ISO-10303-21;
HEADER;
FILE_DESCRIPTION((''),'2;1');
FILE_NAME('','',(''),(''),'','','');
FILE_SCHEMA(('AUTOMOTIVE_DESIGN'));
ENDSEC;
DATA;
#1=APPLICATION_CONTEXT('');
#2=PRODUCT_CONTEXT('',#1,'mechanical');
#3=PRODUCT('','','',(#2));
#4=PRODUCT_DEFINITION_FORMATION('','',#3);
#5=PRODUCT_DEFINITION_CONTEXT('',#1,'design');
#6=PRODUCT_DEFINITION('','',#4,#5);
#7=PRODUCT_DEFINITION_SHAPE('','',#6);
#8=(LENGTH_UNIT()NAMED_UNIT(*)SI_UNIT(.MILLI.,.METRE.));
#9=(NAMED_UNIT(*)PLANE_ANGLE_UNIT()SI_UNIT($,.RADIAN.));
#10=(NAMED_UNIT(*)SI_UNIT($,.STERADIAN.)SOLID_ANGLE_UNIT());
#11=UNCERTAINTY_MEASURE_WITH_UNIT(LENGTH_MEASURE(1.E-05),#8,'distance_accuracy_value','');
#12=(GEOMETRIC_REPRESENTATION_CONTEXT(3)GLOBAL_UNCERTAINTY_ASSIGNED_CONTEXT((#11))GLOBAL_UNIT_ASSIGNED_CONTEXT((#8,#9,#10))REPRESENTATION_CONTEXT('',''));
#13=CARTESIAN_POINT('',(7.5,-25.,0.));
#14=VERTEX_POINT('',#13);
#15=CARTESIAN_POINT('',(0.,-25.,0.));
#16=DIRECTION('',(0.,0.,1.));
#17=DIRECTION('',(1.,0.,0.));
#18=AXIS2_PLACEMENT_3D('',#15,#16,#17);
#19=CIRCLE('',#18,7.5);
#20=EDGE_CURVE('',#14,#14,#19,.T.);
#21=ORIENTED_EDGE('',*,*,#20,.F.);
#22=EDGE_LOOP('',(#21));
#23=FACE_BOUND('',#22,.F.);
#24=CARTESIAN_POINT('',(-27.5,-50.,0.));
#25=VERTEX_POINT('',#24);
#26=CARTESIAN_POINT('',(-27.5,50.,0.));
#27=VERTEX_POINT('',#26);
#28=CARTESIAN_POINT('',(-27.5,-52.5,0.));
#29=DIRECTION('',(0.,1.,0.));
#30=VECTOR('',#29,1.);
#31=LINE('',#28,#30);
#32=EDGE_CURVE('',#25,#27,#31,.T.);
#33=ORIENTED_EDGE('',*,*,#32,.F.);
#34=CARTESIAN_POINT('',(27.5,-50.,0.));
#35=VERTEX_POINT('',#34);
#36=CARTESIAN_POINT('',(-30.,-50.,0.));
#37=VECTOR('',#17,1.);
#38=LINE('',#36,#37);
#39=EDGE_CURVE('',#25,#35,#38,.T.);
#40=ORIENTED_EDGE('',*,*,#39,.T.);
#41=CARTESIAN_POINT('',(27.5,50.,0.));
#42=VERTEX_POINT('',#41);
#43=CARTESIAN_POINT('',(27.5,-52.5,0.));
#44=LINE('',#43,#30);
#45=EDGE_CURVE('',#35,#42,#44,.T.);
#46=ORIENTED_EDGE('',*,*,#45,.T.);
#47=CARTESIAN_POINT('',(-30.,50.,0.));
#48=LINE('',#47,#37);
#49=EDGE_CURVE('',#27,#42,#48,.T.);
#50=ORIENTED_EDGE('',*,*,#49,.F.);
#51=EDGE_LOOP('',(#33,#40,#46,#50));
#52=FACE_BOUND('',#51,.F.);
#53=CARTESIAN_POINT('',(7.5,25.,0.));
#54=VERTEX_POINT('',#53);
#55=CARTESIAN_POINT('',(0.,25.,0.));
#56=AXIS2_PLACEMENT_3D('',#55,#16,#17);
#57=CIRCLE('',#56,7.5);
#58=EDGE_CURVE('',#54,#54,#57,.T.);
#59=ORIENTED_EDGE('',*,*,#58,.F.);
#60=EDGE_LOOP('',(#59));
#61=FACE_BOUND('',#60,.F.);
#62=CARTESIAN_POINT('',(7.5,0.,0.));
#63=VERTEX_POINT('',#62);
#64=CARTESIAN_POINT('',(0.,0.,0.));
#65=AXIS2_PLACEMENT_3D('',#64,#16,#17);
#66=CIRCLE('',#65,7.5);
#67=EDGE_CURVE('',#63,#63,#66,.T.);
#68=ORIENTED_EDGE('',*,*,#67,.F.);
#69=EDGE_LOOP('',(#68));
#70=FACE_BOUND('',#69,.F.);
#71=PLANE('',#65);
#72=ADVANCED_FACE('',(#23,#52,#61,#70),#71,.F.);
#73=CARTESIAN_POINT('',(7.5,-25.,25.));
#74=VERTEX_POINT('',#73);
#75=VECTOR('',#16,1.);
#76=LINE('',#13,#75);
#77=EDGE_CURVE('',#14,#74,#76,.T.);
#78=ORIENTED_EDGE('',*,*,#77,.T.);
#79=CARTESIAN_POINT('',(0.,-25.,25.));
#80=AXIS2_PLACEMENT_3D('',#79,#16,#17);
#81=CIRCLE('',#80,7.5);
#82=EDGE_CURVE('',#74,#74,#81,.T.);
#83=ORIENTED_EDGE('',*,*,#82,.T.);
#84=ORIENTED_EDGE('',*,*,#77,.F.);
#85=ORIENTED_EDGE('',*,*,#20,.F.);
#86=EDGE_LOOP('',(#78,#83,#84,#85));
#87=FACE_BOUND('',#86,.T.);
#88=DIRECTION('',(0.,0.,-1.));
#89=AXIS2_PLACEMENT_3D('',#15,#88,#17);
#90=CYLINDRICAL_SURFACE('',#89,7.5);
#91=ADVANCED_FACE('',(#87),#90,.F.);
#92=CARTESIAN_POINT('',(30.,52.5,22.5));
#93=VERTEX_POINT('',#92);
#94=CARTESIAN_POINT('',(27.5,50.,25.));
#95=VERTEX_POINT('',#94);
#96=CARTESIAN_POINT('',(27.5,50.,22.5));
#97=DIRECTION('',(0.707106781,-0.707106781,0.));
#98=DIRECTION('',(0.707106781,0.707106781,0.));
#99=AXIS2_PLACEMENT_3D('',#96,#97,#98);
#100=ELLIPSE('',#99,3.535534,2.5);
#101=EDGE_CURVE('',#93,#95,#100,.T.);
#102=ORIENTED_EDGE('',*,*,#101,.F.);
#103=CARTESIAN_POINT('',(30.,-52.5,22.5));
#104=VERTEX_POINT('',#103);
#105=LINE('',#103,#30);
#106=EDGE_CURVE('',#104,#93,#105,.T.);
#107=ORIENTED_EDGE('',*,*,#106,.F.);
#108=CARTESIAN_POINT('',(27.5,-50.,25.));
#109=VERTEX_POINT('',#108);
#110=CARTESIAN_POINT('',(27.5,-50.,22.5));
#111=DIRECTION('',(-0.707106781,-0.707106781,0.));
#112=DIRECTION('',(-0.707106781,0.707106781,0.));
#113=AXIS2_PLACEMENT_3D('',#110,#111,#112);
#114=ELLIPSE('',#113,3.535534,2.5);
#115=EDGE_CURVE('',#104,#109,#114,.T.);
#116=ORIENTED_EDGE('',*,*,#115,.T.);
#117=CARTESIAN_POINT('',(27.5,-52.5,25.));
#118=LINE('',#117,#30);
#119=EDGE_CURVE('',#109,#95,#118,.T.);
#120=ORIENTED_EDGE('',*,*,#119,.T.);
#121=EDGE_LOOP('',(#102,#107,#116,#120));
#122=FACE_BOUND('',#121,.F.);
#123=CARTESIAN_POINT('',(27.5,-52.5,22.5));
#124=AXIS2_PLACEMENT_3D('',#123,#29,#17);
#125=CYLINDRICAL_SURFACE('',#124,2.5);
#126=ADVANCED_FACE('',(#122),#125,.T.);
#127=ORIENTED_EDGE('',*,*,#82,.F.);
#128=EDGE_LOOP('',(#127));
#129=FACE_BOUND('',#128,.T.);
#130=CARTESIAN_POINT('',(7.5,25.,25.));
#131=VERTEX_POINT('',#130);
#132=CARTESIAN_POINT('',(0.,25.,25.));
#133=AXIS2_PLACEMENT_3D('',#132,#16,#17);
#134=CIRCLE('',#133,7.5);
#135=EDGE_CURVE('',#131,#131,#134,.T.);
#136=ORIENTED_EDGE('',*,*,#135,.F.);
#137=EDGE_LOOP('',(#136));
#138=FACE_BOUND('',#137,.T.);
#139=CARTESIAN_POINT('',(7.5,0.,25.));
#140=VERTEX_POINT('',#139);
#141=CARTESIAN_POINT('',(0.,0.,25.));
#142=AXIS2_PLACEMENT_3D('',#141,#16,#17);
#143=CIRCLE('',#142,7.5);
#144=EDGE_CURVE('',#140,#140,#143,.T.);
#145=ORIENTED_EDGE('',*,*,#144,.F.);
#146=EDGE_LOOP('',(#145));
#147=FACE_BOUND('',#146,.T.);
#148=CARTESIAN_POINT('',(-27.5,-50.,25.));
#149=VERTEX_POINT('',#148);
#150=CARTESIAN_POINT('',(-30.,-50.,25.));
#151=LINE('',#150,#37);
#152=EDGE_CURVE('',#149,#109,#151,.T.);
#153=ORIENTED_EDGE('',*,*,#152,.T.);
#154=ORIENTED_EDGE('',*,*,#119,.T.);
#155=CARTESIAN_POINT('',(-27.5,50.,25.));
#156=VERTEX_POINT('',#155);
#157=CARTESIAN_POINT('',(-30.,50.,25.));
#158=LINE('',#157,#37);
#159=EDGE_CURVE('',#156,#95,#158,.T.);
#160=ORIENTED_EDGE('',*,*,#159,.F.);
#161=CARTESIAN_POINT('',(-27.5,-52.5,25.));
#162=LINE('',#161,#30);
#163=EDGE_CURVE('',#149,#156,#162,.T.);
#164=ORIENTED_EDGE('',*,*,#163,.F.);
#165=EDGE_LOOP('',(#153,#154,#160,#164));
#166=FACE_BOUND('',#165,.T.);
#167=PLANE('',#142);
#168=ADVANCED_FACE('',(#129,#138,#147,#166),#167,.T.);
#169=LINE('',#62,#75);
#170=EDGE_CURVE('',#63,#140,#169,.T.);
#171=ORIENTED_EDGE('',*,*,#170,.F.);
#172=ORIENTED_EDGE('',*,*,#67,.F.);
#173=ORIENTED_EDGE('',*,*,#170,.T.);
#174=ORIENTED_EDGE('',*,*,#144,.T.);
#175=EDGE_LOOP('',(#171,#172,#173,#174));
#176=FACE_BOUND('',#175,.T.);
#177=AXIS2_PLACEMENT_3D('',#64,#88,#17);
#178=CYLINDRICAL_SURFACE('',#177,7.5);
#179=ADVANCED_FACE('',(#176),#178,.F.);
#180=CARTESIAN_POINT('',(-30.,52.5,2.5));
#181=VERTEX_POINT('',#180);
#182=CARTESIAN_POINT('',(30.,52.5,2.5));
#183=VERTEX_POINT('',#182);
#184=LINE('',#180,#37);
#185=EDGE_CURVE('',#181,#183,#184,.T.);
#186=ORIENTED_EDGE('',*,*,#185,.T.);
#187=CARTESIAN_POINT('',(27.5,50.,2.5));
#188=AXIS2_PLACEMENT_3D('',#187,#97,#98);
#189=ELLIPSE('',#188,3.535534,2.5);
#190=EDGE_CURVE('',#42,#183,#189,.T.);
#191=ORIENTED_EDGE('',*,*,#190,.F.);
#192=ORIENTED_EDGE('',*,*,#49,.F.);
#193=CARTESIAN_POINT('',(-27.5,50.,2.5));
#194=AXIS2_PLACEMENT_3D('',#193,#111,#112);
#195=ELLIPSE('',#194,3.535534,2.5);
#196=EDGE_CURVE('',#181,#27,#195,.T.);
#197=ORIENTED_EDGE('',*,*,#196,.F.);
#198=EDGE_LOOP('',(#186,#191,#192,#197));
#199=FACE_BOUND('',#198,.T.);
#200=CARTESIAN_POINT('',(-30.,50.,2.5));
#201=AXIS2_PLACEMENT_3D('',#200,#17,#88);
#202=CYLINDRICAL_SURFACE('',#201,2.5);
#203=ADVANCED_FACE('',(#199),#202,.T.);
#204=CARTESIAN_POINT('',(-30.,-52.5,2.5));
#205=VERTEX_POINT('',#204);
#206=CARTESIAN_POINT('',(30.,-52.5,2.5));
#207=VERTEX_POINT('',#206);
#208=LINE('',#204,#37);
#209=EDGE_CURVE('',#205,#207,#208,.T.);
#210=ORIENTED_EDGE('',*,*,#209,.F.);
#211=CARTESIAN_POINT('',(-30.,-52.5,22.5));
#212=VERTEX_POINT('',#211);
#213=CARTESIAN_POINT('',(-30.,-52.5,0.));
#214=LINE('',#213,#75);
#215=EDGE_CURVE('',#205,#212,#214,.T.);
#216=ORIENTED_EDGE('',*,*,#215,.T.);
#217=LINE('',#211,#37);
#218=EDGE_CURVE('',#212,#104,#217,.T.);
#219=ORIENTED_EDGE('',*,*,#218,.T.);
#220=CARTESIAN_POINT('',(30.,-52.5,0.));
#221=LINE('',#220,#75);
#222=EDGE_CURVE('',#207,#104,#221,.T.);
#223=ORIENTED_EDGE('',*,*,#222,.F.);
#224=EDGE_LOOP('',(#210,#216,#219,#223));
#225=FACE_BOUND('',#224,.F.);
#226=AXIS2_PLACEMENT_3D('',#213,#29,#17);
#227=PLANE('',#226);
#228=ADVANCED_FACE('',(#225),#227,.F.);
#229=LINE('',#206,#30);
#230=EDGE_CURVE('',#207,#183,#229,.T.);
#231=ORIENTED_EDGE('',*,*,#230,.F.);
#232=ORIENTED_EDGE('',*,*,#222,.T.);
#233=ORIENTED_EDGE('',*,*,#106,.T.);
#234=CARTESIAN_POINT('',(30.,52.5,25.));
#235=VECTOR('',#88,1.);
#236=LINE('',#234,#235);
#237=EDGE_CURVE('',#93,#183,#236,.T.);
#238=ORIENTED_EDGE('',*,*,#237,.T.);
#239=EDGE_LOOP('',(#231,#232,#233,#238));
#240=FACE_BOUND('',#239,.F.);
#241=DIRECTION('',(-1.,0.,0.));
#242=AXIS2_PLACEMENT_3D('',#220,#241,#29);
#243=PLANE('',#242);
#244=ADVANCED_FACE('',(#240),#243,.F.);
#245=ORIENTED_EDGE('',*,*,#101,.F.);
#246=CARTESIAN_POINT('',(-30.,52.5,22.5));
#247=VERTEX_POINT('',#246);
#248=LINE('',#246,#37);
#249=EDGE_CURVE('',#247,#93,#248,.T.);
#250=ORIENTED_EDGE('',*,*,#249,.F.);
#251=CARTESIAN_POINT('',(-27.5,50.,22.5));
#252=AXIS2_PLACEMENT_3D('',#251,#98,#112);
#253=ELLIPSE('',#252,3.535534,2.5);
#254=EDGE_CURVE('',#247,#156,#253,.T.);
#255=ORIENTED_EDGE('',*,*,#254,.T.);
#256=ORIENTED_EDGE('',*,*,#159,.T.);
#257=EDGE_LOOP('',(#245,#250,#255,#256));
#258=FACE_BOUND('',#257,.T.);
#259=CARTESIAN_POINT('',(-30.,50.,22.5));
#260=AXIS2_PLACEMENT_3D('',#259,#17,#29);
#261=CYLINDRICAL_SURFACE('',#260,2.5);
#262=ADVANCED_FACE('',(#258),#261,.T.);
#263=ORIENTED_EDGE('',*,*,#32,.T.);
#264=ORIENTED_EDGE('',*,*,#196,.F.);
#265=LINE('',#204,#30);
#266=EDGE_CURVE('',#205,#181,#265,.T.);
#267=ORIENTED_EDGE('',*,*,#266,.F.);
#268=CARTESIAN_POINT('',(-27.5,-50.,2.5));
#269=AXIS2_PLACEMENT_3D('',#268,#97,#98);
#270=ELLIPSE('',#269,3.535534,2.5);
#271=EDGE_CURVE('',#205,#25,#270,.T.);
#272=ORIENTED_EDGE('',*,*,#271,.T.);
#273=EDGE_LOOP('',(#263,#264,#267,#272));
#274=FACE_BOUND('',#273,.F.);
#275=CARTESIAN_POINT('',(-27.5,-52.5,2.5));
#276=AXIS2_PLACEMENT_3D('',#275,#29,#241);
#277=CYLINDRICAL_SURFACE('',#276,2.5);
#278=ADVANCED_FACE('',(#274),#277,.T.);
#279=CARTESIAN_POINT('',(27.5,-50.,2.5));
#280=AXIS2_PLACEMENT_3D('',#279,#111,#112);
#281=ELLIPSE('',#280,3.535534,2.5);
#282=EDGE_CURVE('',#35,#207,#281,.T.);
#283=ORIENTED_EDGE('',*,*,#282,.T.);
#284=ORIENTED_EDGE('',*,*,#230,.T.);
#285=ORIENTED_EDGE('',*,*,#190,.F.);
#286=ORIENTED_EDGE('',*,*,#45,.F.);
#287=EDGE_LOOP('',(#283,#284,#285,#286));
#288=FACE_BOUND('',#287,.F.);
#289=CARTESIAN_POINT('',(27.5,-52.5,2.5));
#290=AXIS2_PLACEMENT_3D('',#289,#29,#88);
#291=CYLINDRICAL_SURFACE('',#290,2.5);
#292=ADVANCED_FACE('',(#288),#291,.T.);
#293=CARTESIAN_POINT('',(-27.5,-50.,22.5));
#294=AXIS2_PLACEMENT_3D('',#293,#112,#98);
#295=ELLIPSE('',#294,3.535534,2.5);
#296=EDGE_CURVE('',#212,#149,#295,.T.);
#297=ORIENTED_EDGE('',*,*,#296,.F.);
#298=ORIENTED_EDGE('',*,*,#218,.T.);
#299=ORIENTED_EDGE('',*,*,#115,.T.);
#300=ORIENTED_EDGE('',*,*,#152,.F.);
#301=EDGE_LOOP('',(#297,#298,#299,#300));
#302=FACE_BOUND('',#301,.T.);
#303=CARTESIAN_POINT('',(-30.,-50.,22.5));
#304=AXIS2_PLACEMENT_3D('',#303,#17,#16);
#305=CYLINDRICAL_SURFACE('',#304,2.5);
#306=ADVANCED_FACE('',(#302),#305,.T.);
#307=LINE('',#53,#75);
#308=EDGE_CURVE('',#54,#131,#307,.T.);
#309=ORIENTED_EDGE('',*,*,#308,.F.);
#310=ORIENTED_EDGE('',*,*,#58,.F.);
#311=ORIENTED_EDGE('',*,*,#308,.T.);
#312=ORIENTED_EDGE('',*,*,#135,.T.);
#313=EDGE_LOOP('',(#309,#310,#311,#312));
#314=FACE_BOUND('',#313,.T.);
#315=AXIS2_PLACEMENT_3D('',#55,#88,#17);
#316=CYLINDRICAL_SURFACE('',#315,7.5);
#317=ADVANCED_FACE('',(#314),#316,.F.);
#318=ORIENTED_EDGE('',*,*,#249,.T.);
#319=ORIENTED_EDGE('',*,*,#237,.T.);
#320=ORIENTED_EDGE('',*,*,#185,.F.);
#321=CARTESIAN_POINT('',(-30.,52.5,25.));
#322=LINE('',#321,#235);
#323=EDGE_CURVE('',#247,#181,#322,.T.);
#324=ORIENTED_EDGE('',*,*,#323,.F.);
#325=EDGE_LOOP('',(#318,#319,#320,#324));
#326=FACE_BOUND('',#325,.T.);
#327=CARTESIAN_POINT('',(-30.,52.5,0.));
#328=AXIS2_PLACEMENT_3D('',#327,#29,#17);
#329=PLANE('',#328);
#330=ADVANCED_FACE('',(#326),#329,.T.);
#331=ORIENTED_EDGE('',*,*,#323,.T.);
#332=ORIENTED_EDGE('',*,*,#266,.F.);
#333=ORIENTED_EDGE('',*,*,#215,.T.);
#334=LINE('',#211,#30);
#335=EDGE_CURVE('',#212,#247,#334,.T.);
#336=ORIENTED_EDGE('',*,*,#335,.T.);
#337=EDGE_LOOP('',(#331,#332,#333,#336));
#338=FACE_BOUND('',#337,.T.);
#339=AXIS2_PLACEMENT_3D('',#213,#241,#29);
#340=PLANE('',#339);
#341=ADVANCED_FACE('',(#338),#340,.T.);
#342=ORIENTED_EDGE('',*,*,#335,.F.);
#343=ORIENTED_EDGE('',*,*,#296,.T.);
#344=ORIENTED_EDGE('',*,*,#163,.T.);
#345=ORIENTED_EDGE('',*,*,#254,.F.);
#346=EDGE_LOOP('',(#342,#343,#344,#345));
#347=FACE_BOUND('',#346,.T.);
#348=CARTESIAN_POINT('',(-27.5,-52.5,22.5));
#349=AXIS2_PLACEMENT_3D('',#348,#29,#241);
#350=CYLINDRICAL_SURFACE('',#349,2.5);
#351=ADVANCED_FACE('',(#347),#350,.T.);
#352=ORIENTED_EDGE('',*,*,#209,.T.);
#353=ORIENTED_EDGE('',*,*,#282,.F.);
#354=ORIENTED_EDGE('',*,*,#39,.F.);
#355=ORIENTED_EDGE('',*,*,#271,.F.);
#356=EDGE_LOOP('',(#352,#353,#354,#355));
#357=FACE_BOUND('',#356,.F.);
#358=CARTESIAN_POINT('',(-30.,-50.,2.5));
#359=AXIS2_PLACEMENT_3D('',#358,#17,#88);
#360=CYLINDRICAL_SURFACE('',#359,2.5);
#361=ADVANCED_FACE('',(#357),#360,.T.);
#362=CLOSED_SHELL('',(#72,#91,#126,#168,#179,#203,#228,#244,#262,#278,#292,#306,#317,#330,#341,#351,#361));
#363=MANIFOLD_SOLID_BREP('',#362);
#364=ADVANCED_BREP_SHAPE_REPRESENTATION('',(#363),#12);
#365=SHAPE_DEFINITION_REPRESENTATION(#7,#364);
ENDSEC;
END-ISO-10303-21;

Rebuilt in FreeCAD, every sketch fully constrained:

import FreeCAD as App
import Part
import Sketcher

V = App.Vector
Q = App.Units.Quantity


def edges_at(feature, points):
    """Names of the edges that pass closest to the given points."""
    edges = feature.Shape.Edges
    near = lambda p: min(range(len(edges)), key=lambda i: edges[i].distToShape(Part.Vertex(*p))[0])
    return sorted({f"Edge{near(p) + 1}" for p in points})

doc = App.newDocument("Part")
body = doc.addObject("PartDesign::Body", "Body")

sketch1 = doc.addObject("Sketcher::SketchObject", "Sketch")
body.addObject(sketch1)
sketch1.AttachmentSupport = (doc.XY_Plane, [""])
sketch1.MapMode = "FlatFace"
sketch1.addGeometry([
    Part.LineSegment(V(-30, 52, 0), V(-30, -52, 0)),
    Part.LineSegment(V(-30, -52, 0), V(30, -52, 0)),
    Part.LineSegment(V(30, -52, 0), V(30, 52, 0)),
    Part.LineSegment(V(30, 52, 0), V(-30, 52, 0)),
    Part.Circle(V(0, -25, 0), V(0, 0, 1), 8),
    Part.Circle(V(0, 0, 0), V(0, 0, 1), 8),
    Part.Circle(V(0, 25, 0), V(0, 0, 1), 8),
], False)
sketch1.addConstraint([
    Sketcher.Constraint("Coincident", 0, 2, 1, 1),
    Sketcher.Constraint("Coincident", 1, 2, 2, 1),
    Sketcher.Constraint("Coincident", 2, 2, 3, 1),
    Sketcher.Constraint("Coincident", 3, 2, 0, 1),
    Sketcher.Constraint("Vertical", 0),
    Sketcher.Constraint("Horizontal", 1),
    Sketcher.Constraint("Vertical", 2),
    Sketcher.Constraint("Horizontal", 3),
    Sketcher.Constraint("Coincident", 5, 3, -1, 1),
    Sketcher.Constraint("Equal", 4, 5),
    Sketcher.Constraint("Equal", 5, 6),
    Sketcher.Constraint("Symmetric", 4, 3, 6, 3, -1, 1),
    Sketcher.Constraint("Symmetric", 0, 2, 2, 2, -1, 1),
    Sketcher.Constraint("PointOnObject", 4, 3, -2),
    Sketcher.Constraint("Diameter", 4, Q("15 mm")),
    Sketcher.Constraint("DistanceX", 1, 1, 1, 2, Q("60 mm")),
    Sketcher.Constraint("DistanceY", 0, 2, 0, 1, Q("105 mm")),
    Sketcher.Constraint("DistanceY", 4, 3, -1, 1, Q("25 mm")),
])
pad1 = doc.addObject("PartDesign::Pad", "Pad")
body.addObject(pad1)
pad1.Profile = sketch1
pad1.Length = 20

sketch2 = doc.addObject("Sketcher::SketchObject", "Sketch001")
body.addObject(sketch2)
sketch2.AttachmentSupport = (doc.XY_Plane, [""])
sketch2.MapMode = "FlatFace"
sketch2.addGeometry([
    Part.LineSegment(V(-30, 52, 0), V(-30, -52, 0)),
    Part.LineSegment(V(-30, -52, 0), V(30, -52, 0)),
    Part.LineSegment(V(30, -52, 0), V(30, 52, 0)),
    Part.LineSegment(V(30, 52, 0), V(-30, 52, 0)),
    Part.Circle(V(0, -25, 0), V(0, 0, 1), 8),
    Part.Circle(V(0, 0, 0), V(0, 0, 1), 8),
    Part.Circle(V(0, 25, 0), V(0, 0, 1), 8),
], False)
sketch2.addConstraint([
    Sketcher.Constraint("Coincident", 0, 2, 1, 1),
    Sketcher.Constraint("Coincident", 1, 2, 2, 1),
    Sketcher.Constraint("Coincident", 2, 2, 3, 1),
    Sketcher.Constraint("Coincident", 3, 2, 0, 1),
    Sketcher.Constraint("Vertical", 0),
    Sketcher.Constraint("Horizontal", 1),
    Sketcher.Constraint("Vertical", 2),
    Sketcher.Constraint("Horizontal", 3),
    Sketcher.Constraint("Coincident", 5, 3, -1, 1),
    Sketcher.Constraint("Equal", 4, 5),
    Sketcher.Constraint("Equal", 5, 6),
    Sketcher.Constraint("Symmetric", 4, 3, 6, 3, -1, 1),
    Sketcher.Constraint("Symmetric", 0, 2, 2, 2, -1, 1),
    Sketcher.Constraint("PointOnObject", 4, 3, -2),
    Sketcher.Constraint("Diameter", 4, Q("15 mm")),
    Sketcher.Constraint("DistanceX", 1, 1, 1, 2, Q("60 mm")),
    Sketcher.Constraint("DistanceY", 0, 2, 0, 1, Q("105 mm")),
    Sketcher.Constraint("DistanceY", 4, 3, -1, 1, Q("25 mm")),
])
pad2 = doc.addObject("PartDesign::Pad", "Pad001")
body.addObject(pad2)
pad2.Profile = sketch2
pad2.Length = 25
doc.recompute()

fillet = doc.addObject("PartDesign::Fillet", "Fillet")
body.addObject(fillet)
fillet.Base = (pad2, edges_at(pad2, [
    (-30, 0, 25),
    (0, 52.5, 25),
    (30, 0, 25),
    (0, -52.5, 25),
    (-30, 0, 0),
    (0, 52.5, 0),
    (30, 0, 0),
    (0, -52.5, 0),
]))
fillet.Radius = 2.5

doc.recompute()
